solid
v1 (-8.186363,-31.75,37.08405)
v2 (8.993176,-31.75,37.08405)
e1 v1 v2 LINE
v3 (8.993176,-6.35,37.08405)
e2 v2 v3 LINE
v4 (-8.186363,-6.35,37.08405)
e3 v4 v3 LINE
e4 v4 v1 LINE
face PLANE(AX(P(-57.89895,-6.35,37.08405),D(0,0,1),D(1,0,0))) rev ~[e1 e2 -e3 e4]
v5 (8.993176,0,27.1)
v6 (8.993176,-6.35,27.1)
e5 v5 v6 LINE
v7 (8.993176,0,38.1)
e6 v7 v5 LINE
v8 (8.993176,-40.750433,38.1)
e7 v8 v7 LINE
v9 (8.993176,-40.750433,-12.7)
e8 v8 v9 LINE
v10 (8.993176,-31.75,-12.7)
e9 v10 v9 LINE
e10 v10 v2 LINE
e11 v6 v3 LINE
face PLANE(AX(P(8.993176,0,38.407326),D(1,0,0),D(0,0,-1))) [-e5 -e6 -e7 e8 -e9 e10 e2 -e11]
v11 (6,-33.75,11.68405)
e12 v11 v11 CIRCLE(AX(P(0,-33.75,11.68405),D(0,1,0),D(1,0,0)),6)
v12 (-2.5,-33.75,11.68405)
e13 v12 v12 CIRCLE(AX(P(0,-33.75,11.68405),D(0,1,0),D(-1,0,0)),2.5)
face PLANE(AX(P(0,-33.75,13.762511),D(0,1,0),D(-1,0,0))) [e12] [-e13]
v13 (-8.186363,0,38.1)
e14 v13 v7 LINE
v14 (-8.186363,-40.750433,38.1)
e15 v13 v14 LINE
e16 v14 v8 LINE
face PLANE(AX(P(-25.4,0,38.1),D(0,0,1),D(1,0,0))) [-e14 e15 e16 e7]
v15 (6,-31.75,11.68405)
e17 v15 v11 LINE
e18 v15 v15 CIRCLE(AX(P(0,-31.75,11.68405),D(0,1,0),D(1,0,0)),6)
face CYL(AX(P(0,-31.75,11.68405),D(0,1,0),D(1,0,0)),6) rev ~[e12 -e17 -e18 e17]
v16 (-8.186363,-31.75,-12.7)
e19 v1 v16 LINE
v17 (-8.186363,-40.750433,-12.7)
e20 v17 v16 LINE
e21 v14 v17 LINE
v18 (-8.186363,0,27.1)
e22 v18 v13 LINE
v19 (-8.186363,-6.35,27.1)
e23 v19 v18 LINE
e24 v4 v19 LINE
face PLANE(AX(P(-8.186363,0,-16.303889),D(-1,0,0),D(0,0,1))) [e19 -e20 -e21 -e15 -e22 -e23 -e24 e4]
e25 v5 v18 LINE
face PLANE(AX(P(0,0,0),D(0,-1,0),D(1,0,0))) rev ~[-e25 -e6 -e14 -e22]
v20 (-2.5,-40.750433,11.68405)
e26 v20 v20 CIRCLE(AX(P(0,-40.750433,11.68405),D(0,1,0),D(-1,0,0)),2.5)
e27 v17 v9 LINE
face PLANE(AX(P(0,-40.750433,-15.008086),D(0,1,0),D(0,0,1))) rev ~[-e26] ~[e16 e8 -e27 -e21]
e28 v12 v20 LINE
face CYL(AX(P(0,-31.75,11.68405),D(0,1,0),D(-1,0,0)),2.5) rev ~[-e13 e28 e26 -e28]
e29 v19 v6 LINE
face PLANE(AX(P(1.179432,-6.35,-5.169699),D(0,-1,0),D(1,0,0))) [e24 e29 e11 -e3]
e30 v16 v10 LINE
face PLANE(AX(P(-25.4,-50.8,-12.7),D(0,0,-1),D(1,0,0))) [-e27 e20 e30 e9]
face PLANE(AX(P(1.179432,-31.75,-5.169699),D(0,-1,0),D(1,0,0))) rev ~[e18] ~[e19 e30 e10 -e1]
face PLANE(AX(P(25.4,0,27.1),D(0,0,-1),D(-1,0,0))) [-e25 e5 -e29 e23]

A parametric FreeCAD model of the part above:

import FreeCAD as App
import Part
import Sketcher
Q = App.Units.Quantity

doc = App.newDocument("Part")
params = doc.addObject("Spreadsheet::Sheet", "Params")
for row, (alias, value) in enumerate([
    ("sketch1_width", "50.8 mm"),
    ("sketch1_height", "76.2 mm"),
    ("pad1_length", "50.8 mm"),
    ("pad2_length", "25.4 mm"),
    ("sketch3_width", "50.8 mm"),
    ("sketch3_height", "65.2 mm"),
    ("pocket1_length", "25.4 mm"),
    ("sketch4_diameter", "12 mm"),
    ("pocket2_length", "2 mm"),
    ("sketch5_diameter", "5 mm"),
    ("pocket3_length", "25.4 mm"),
    ("sketch6_width", "50.8 mm"),
    ("sketch6_height", "25.4 mm"),
    ("pocket4_length", "25.4 mm"),
    ("pocket5_length", "76.2 mm"),
    ("pocket6_length", "50.8 mm"),
    ("pocket7_length", "12.7 mm"),
    ("pocket8_length", "12.7 mm"),
], start=1):
    params.set(f"A{row}", alias)
    params.set(f"B{row}", "=" + value)
    params.setAlias(f"B{row}", alias)

body = doc.addObject("PartDesign::Body", "Body")

sketch1 = doc.addObject("Sketcher::SketchObject", "Sketch")
body.addObject(sketch1)
sketch1.AttachmentSupport = (doc.XZ_Plane, [""])
sketch1.MapMode = "FlatFace"
sketch1.addGeometry([
    Part.LineSegment(App.Vector(-25, 38, 0), App.Vector(-25, -38, 0)),
    Part.LineSegment(App.Vector(-25, -38, 0), App.Vector(25, -38, 0)),
    Part.LineSegment(App.Vector(25, -38, 0), App.Vector(25, 38, 0)),
    Part.LineSegment(App.Vector(25, 38, 0), App.Vector(-25, 38, 0)),
], False)
sketch1.addConstraint([
    Sketcher.Constraint("Coincident", 0, 2, 1, 1),
    Sketcher.Constraint("Coincident", 1, 2, 2, 1),
    Sketcher.Constraint("Coincident", 2, 2, 3, 1),
    Sketcher.Constraint("Coincident", 3, 2, 0, 1),
    Sketcher.Constraint("Vertical", 0),
    Sketcher.Constraint("Horizontal", 1),
    Sketcher.Constraint("Vertical", 2),
    Sketcher.Constraint("Horizontal", 3),
    Sketcher.Constraint("Symmetric", 0, 2, 2, 2, -1, 1),
    Sketcher.Constraint("DistanceX", 1, 1, 1, 2, Q("50.8 mm")),
    Sketcher.Constraint("DistanceY", 0, 2, 0, 1, Q("76.2 mm")),
])
sketch1.setExpression("Constraints[9]", "Params.sketch1_width")
sketch1.setExpression("Constraints[10]", "Params.sketch1_height")
pad1 = doc.addObject("PartDesign::Pad", "Pad")
body.addObject(pad1)
pad1.Profile = sketch1
pad1.setExpression("Length", "Params.pad1_length")
body2 = doc.addObject("PartDesign::Body", "Body001")

sketch2 = doc.addObject("Sketcher::SketchObject", "Sketch001")
body2.addObject(sketch2)
sketch2.AttachmentSupport = (doc.getObject("XZ_Plane001"), [""])
sketch2.MapMode = "FlatFace"
sketch2.addGeometry([
    Part.LineSegment(App.Vector(-58, 37, 0), App.Vector(-58, -47, 0)),
    Part.LineSegment(App.Vector(-58, -47, 0), App.Vector(60, -47, 0)),
    Part.LineSegment(App.Vector(60, -47, 0), App.Vector(60, 37, 0)),
    Part.LineSegment(App.Vector(60, 37, 0), App.Vector(-58, 37, 0)),
], False)
sketch2.addConstraint([
    Sketcher.Constraint("Coincident", 0, 2, 1, 1),
    Sketcher.Constraint("Coincident", 1, 2, 2, 1),
    Sketcher.Constraint("Coincident", 2, 2, 3, 1),
    Sketcher.Constraint("Coincident", 3, 2, 0, 1),
    Sketcher.Constraint("Vertical", 0),
    Sketcher.Constraint("Horizontal", 1),
    Sketcher.Constraint("Vertical", 2),
    Sketcher.Constraint("Horizontal", 3),
    Sketcher.Constraint("DistanceY", 0, 2, 0, 1, Q("84.507499 mm")),
    Sketcher.Constraint("DistanceX", 1, 1, 1, 2, Q("118.156765 mm")),
    Sketcher.Constraint("DistanceX", 0, 2, -1, 1, Q("57.89895 mm")),
    Sketcher.Constraint("DistanceY", 0, 2, -1, 1, Q("47.423448 mm")),
])
pad2 = doc.addObject("PartDesign::Pad", "Pad001")
body2.addObject(pad2)
pad2.Profile = sketch2
pad2.setExpression("Length", "Params.pad2_length")
body3 = doc.addObject("PartDesign::Body", "Body002")
doc.recompute()

body2.Placement = App.Placement(App.Vector(0, -6.35, 0), App.Rotation(App.Vector(0, 0, 1), 0))
boolean = doc.addObject("PartDesign::Boolean", "Boolean")
body3.addObject(boolean)
boolean.Type = "Fuse"
boolean.addObjects([body2])
doc.recompute()

boolean2 = doc.addObject("PartDesign::Boolean", "Boolean001")
body.addObject(boolean2)
boolean2.Type = "Cut"
boolean2.addObjects([body3])

sketch3 = doc.addObject("Sketcher::SketchObject", "Sketch002")
body.addObject(sketch3)
sketch3.AttachmentSupport = (doc.XZ_Plane, [""])
sketch3.MapMode = "FlatFace"
sketch3.addGeometry([
    Part.LineSegment(App.Vector(25, 27, 0), App.Vector(25, -38, 0)),
    Part.LineSegment(App.Vector(25, -38, 0), App.Vector(-25, -38, 0)),
    Part.LineSegment(App.Vector(-25, -38, 0), App.Vector(-25, 27, 0)),
    Part.LineSegment(App.Vector(-25, 27, 0), App.Vector(25, 27, 0)),
], False)
sketch3.addConstraint([
    Sketcher.Constraint("Coincident", 0, 2, 1, 1),
    Sketcher.Constraint("Coincident", 1, 2, 2, 1),
    Sketcher.Constraint("Coincident", 2, 2, 3, 1),
    Sketcher.Constraint("Coincident", 3, 2, 0, 1),
    Sketcher.Constraint("Vertical", 0),
    Sketcher.Constraint("Horizontal", 1),
    Sketcher.Constraint("Vertical", 2),
    Sketcher.Constraint("Horizontal", 3),
    Sketcher.Constraint("DistanceX", 1, 2, 1, 1, Q("50.8 mm")),
    Sketcher.Constraint("DistanceY", 0, 2, 0, 1, Q("65.2 mm")),
    Sketcher.Constraint("DistanceX", -1, 1, 0, 2, Q("25.4 mm")),
    Sketcher.Constraint("DistanceY", 0, 2, -1, 1, Q("38.1 mm")),
])
sketch3.setExpression("Constraints[8]", "Params.sketch3_width")
sketch3.setExpression("Constraints[9]", "Params.sketch3_height")
pocket1 = doc.addObject("PartDesign::Pocket", "Pocket")
body.addObject(pocket1)
pocket1.Profile = sketch3
pocket1.setExpression("Length", "Params.pocket1_length")
pocket1.Reversed = True

sketch4 = doc.addObject("Sketcher::SketchObject", "Sketch003")
body.addObject(sketch4)
sketch4.AttachmentSupport = (doc.XZ_Plane, [""])
sketch4.MapMode = "FlatFace"
sketch4.AttachmentOffset = App.Placement(App.Vector(0, 0, 31.75), App.Rotation())
sketch4.addGeometry(Part.Circle(App.Vector(0, 12, 0), App.Vector(0, 0, 1), 6), False)
sketch4.addConstraint([
    Sketcher.Constraint("PointOnObject", 0, 3, -2),
    Sketcher.Constraint("Diameter", 0, Q("12 mm")),
    Sketcher.Constraint("DistanceY", -1, 1, 0, 3, Q("11.68405 mm")),
])
sketch4.setExpression("Constraints[1]", "Params.sketch4_diameter")
pocket2 = doc.addObject("PartDesign::Pocket", "Pocket001")
body.addObject(pocket2)
pocket2.Profile = sketch4
pocket2.setExpression("Length", "Params.pocket2_length")
pocket2.Reversed = True

sketch5 = doc.addObject("Sketcher::SketchObject", "Sketch004")
body.addObject(sketch5)
sketch5.AttachmentSupport = (doc.XZ_Plane, [""])
sketch5.MapMode = "FlatFace"
sketch5.AttachmentOffset = App.Placement(App.Vector(0, 0, 31.75), App.Rotation())
sketch5.addGeometry(Part.Circle(App.Vector(0, 11.7, 0), App.Vector(0, 0, 1), 2.5), False)
sketch5.addConstraint([
    Sketcher.Constraint("PointOnObject", 0, 3, -2),
    Sketcher.Constraint("Diameter", 0, Q("5 mm")),
    Sketcher.Constraint("DistanceY", -1, 1, 0, 3, Q("11.68405 mm")),
])
sketch5.setExpression("Constraints[1]", "Params.sketch5_diameter")
pocket3 = doc.addObject("PartDesign::Pocket", "Pocket002")
body.addObject(pocket3)
pocket3.Profile = sketch5
pocket3.setExpression("Length", "Params.pocket3_length")
pocket3.Reversed = True

sketch6 = doc.addObject("Sketcher::SketchObject", "Sketch005")
body.addObject(sketch6)
sketch6.AttachmentSupport = (doc.XZ_Plane, [""])
sketch6.MapMode = "FlatFace"
sketch6.AttachmentOffset = App.Placement(App.Vector(0, 0, 50.8), App.Rotation())
sketch6.addGeometry([
    Part.LineSegment(App.Vector(-25, -13, 0), App.Vector(-25, -38, 0)),
    Part.LineSegment(App.Vector(-25, -38, 0), App.Vector(25, -38, 0)),
    Part.LineSegment(App.Vector(25, -38, 0), App.Vector(25, -13, 0)),
    Part.LineSegment(App.Vector(25, -13, 0), App.Vector(-25, -13, 0)),
], False)
sketch6.addConstraint([
    Sketcher.Constraint("Coincident", 0, 2, 1, 1),
    Sketcher.Constraint("Coincident", 1, 2, 2, 1),
    Sketcher.Constraint("Coincident", 2, 2, 3, 1),
    Sketcher.Constraint("Coincident", 3, 2, 0, 1),
    Sketcher.Constraint("Vertical", 0),
    Sketcher.Constraint("Horizontal", 1),
    Sketcher.Constraint("Vertical", 2),
    Sketcher.Constraint("Horizontal", 3),
    Sketcher.Constraint("DistanceX", 1, 1, 1, 2, Q("50.8 mm")),
    Sketcher.Constraint("DistanceY", 0, 2, 0, 1, Q("25.4 mm")),
    Sketcher.Constraint("DistanceX", 0, 2, -1, 1, Q("25.4 mm")),
    Sketcher.Constraint("DistanceY", 0, 2, -1, 1, Q("38.1 mm")),
])
sketch6.setExpression("Constraints[8]", "Params.sketch6_width")
sketch6.setExpression("Constraints[9]", "Params.sketch6_height")
pocket4 = doc.addObject("PartDesign::Pocket", "Pocket003")
body.addObject(pocket4)
pocket4.Profile = sketch6
pocket4.setExpression("Length", "Params.pocket4_length")

sketch7 = doc.addObject("Sketcher::SketchObject", "Sketch006")
body.addObject(sketch7)
sketch7.AttachmentSupport = (doc.XZ_Plane, [""])
sketch7.MapMode = "FlatFace"
sketch7.addGeometry([
    Part.LineSegment(App.Vector(9, 38, 0), App.Vector(9, -15, 0)),
    Part.LineSegment(App.Vector(9, -15, 0), App.Vector(33, -15, 0)),
    Part.LineSegment(App.Vector(33, -15, 0), App.Vector(33, 38, 0)),
    Part.LineSegment(App.Vector(33, 38, 0), App.Vector(9, 38, 0)),
], False)
sketch7.addConstraint([
    Sketcher.Constraint("Coincident", 0, 2, 1, 1),
    Sketcher.Constraint("Coincident", 1, 2, 2, 1),
    Sketcher.Constraint("Coincident", 2, 2, 3, 1),
    Sketcher.Constraint("Coincident", 3, 2, 0, 1),
    Sketcher.Constraint("Vertical", 0),
    Sketcher.Constraint("Horizontal", 1),
    Sketcher.Constraint("Vertical", 2),
    Sketcher.Constraint("Horizontal", 3),
    Sketcher.Constraint("DistanceX", 1, 1, 1, 2, Q("23.676245 mm")),
    Sketcher.Constraint("DistanceY", 0, 2, 0, 1, Q("53.404616 mm")),
    Sketcher.Constraint("DistanceY", 0, 2, -1, 1, Q("14.99729 mm")),
    Sketcher.Constraint("DistanceX", -1, 1, 1, 2, Q("32.669421 mm")),
])
pocket5 = doc.addObject("PartDesign::Pocket", "Pocket004")
body.addObject(pocket5)
pocket5.Profile = sketch7
pocket5.setExpression("Length", "Params.pocket5_length")
pocket5.Reversed = True

sketch8 = doc.addObject("Sketcher::SketchObject", "Sketch007")
body.addObject(sketch8)
sketch8.AttachmentSupport = (doc.XZ_Plane, [""])
sketch8.MapMode = "FlatFace"
sketch8.addGeometry([
    Part.LineSegment(App.Vector(-29, 43, 0), App.Vector(-29, -16, 0)),
    Part.LineSegment(App.Vector(-29, -16, 0), App.Vector(-8, -16, 0)),
    Part.LineSegment(App.Vector(-8, -16, 0), App.Vector(-8, 43, 0)),
    Part.LineSegment(App.Vector(-8, 43, 0), App.Vector(-29, 43, 0)),
], False)
sketch8.addConstraint([
    Sketcher.Constraint("Coincident", 0, 2, 1, 1),
    Sketcher.Constraint("Coincident", 1, 2, 2, 1),
    Sketcher.Constraint("Coincident", 2, 2, 3, 1),
    Sketcher.Constraint("Coincident", 3, 2, 0, 1),
    Sketcher.Constraint("Vertical", 0),
    Sketcher.Constraint("Horizontal", 1),
    Sketcher.Constraint("Vertical", 2),
    Sketcher.Constraint("Horizontal", 3),
    Sketcher.Constraint("DistanceX", 1, 1, 1, 2, Q("20.616161 mm")),
    Sketcher.Constraint("DistanceY", 0, 2, 0, 1, Q("59.590366 mm")),
    Sketcher.Constraint("DistanceY", 0, 2, -1, 1, Q("16.303889 mm")),
    Sketcher.Constraint("DistanceX", 0, 2, -1, 1, Q("28.802523 mm")),
])
pocket6 = doc.addObject("PartDesign::Pocket", "Pocket005")
body.addObject(pocket6)
pocket6.Profile = sketch8
pocket6.setExpression("Length", "Params.pocket6_length")
pocket6.Reversed = True

sketch9 = doc.addObject("Sketcher::SketchObject", "Sketch008")
body.addObject(sketch9)
sketch9.AttachmentSupport = (doc.YZ_Plane, [""])
sketch9.MapMode = "FlatFace"
sketch9.addGeometry([
    Part.LineSegment(App.Vector(-56, 39, 0), App.Vector(-56, -15, 0)),
    Part.LineSegment(App.Vector(-56, -15, 0), App.Vector(-41, -15, 0)),
    Part.LineSegment(App.Vector(-41, -15, 0), App.Vector(-41, 39, 0)),
    Part.LineSegment(App.Vector(-41, 39, 0), App.Vector(-56, 39, 0)),
], False)
sketch9.addConstraint([
    Sketcher.Constraint("Coincident", 0, 2, 1, 1),
    Sketcher.Constraint("Coincident", 1, 2, 2, 1),
    Sketcher.Constraint("Coincident", 2, 2, 3, 1),
    Sketcher.Constraint("Coincident", 3, 2, 0, 1),
    Sketcher.Constraint("Vertical", 0),
    Sketcher.Constraint("Horizontal", 1),
    Sketcher.Constraint("Vertical", 2),
    Sketcher.Constraint("Horizontal", 3),
    Sketcher.Constraint("DistanceY", 0, 2, 0, 1, Q("54.068869 mm")),
    Sketcher.Constraint("DistanceX", 1, 1, 1, 2, Q("15.107483 mm")),
    Sketcher.Constraint("DistanceX", 0, 2, -1, 1, Q("55.857915 mm")),
    Sketcher.Constraint("DistanceY", 0, 2, -1, 1, Q("15.008086 mm")),
])
pocket7 = doc.addObject("PartDesign::Pocket", "Pocket006")
body.addObject(pocket7)
pocket7.Profile = sketch9
pocket7.setExpression("Length", "Params.pocket7_length")

sketch10 = doc.addObject("Sketcher::SketchObject", "Sketch009")
body.addObject(sketch10)
sketch10.AttachmentSupport = (doc.YZ_Plane, [""])
sketch10.MapMode = "FlatFace"
sketch10.addGeometry([
    Part.LineSegment(App.Vector(-56, 39, 0), App.Vector(-56, -15, 0)),
    Part.LineSegment(App.Vector(-56, -15, 0), App.Vector(-41, -15, 0)),
    Part.LineSegment(App.Vector(-41, -15, 0), App.Vector(-41, 39, 0)),
    Part.LineSegment(App.Vector(-41, 39, 0), App.Vector(-56, 39, 0)),
], False)
sketch10.addConstraint([
    Sketcher.Constraint("Coincident", 0, 2, 1, 1),
    Sketcher.Constraint("Coincident", 1, 2, 2, 1),
    Sketcher.Constraint("Coincident", 2, 2, 3, 1),
    Sketcher.Constraint("Coincident", 3, 2, 0, 1),
    Sketcher.Constraint("Vertical", 0),
    Sketcher.Constraint("Horizontal", 1),
    Sketcher.Constraint("Vertical", 2),
    Sketcher.Constraint("Horizontal", 3),
    Sketcher.Constraint("DistanceY", 0, 2, 0, 1, Q("54.068869 mm")),
    Sketcher.Constraint("DistanceX", 1, 1, 1, 2, Q("15.107483 mm")),
    Sketcher.Constraint("DistanceX", 0, 2, -1, 1, Q("55.857915 mm")),
    Sketcher.Constraint("DistanceY", 0, 2, -1, 1, Q("15.008086 mm")),
])
pocket8 = doc.addObject("PartDesign::Pocket", "Pocket007")
body.addObject(pocket8)
pocket8.Profile = sketch10
pocket8.setExpression("Length", "Params.pocket8_length")
pocket8.Reversed = True

doc.recompute()
